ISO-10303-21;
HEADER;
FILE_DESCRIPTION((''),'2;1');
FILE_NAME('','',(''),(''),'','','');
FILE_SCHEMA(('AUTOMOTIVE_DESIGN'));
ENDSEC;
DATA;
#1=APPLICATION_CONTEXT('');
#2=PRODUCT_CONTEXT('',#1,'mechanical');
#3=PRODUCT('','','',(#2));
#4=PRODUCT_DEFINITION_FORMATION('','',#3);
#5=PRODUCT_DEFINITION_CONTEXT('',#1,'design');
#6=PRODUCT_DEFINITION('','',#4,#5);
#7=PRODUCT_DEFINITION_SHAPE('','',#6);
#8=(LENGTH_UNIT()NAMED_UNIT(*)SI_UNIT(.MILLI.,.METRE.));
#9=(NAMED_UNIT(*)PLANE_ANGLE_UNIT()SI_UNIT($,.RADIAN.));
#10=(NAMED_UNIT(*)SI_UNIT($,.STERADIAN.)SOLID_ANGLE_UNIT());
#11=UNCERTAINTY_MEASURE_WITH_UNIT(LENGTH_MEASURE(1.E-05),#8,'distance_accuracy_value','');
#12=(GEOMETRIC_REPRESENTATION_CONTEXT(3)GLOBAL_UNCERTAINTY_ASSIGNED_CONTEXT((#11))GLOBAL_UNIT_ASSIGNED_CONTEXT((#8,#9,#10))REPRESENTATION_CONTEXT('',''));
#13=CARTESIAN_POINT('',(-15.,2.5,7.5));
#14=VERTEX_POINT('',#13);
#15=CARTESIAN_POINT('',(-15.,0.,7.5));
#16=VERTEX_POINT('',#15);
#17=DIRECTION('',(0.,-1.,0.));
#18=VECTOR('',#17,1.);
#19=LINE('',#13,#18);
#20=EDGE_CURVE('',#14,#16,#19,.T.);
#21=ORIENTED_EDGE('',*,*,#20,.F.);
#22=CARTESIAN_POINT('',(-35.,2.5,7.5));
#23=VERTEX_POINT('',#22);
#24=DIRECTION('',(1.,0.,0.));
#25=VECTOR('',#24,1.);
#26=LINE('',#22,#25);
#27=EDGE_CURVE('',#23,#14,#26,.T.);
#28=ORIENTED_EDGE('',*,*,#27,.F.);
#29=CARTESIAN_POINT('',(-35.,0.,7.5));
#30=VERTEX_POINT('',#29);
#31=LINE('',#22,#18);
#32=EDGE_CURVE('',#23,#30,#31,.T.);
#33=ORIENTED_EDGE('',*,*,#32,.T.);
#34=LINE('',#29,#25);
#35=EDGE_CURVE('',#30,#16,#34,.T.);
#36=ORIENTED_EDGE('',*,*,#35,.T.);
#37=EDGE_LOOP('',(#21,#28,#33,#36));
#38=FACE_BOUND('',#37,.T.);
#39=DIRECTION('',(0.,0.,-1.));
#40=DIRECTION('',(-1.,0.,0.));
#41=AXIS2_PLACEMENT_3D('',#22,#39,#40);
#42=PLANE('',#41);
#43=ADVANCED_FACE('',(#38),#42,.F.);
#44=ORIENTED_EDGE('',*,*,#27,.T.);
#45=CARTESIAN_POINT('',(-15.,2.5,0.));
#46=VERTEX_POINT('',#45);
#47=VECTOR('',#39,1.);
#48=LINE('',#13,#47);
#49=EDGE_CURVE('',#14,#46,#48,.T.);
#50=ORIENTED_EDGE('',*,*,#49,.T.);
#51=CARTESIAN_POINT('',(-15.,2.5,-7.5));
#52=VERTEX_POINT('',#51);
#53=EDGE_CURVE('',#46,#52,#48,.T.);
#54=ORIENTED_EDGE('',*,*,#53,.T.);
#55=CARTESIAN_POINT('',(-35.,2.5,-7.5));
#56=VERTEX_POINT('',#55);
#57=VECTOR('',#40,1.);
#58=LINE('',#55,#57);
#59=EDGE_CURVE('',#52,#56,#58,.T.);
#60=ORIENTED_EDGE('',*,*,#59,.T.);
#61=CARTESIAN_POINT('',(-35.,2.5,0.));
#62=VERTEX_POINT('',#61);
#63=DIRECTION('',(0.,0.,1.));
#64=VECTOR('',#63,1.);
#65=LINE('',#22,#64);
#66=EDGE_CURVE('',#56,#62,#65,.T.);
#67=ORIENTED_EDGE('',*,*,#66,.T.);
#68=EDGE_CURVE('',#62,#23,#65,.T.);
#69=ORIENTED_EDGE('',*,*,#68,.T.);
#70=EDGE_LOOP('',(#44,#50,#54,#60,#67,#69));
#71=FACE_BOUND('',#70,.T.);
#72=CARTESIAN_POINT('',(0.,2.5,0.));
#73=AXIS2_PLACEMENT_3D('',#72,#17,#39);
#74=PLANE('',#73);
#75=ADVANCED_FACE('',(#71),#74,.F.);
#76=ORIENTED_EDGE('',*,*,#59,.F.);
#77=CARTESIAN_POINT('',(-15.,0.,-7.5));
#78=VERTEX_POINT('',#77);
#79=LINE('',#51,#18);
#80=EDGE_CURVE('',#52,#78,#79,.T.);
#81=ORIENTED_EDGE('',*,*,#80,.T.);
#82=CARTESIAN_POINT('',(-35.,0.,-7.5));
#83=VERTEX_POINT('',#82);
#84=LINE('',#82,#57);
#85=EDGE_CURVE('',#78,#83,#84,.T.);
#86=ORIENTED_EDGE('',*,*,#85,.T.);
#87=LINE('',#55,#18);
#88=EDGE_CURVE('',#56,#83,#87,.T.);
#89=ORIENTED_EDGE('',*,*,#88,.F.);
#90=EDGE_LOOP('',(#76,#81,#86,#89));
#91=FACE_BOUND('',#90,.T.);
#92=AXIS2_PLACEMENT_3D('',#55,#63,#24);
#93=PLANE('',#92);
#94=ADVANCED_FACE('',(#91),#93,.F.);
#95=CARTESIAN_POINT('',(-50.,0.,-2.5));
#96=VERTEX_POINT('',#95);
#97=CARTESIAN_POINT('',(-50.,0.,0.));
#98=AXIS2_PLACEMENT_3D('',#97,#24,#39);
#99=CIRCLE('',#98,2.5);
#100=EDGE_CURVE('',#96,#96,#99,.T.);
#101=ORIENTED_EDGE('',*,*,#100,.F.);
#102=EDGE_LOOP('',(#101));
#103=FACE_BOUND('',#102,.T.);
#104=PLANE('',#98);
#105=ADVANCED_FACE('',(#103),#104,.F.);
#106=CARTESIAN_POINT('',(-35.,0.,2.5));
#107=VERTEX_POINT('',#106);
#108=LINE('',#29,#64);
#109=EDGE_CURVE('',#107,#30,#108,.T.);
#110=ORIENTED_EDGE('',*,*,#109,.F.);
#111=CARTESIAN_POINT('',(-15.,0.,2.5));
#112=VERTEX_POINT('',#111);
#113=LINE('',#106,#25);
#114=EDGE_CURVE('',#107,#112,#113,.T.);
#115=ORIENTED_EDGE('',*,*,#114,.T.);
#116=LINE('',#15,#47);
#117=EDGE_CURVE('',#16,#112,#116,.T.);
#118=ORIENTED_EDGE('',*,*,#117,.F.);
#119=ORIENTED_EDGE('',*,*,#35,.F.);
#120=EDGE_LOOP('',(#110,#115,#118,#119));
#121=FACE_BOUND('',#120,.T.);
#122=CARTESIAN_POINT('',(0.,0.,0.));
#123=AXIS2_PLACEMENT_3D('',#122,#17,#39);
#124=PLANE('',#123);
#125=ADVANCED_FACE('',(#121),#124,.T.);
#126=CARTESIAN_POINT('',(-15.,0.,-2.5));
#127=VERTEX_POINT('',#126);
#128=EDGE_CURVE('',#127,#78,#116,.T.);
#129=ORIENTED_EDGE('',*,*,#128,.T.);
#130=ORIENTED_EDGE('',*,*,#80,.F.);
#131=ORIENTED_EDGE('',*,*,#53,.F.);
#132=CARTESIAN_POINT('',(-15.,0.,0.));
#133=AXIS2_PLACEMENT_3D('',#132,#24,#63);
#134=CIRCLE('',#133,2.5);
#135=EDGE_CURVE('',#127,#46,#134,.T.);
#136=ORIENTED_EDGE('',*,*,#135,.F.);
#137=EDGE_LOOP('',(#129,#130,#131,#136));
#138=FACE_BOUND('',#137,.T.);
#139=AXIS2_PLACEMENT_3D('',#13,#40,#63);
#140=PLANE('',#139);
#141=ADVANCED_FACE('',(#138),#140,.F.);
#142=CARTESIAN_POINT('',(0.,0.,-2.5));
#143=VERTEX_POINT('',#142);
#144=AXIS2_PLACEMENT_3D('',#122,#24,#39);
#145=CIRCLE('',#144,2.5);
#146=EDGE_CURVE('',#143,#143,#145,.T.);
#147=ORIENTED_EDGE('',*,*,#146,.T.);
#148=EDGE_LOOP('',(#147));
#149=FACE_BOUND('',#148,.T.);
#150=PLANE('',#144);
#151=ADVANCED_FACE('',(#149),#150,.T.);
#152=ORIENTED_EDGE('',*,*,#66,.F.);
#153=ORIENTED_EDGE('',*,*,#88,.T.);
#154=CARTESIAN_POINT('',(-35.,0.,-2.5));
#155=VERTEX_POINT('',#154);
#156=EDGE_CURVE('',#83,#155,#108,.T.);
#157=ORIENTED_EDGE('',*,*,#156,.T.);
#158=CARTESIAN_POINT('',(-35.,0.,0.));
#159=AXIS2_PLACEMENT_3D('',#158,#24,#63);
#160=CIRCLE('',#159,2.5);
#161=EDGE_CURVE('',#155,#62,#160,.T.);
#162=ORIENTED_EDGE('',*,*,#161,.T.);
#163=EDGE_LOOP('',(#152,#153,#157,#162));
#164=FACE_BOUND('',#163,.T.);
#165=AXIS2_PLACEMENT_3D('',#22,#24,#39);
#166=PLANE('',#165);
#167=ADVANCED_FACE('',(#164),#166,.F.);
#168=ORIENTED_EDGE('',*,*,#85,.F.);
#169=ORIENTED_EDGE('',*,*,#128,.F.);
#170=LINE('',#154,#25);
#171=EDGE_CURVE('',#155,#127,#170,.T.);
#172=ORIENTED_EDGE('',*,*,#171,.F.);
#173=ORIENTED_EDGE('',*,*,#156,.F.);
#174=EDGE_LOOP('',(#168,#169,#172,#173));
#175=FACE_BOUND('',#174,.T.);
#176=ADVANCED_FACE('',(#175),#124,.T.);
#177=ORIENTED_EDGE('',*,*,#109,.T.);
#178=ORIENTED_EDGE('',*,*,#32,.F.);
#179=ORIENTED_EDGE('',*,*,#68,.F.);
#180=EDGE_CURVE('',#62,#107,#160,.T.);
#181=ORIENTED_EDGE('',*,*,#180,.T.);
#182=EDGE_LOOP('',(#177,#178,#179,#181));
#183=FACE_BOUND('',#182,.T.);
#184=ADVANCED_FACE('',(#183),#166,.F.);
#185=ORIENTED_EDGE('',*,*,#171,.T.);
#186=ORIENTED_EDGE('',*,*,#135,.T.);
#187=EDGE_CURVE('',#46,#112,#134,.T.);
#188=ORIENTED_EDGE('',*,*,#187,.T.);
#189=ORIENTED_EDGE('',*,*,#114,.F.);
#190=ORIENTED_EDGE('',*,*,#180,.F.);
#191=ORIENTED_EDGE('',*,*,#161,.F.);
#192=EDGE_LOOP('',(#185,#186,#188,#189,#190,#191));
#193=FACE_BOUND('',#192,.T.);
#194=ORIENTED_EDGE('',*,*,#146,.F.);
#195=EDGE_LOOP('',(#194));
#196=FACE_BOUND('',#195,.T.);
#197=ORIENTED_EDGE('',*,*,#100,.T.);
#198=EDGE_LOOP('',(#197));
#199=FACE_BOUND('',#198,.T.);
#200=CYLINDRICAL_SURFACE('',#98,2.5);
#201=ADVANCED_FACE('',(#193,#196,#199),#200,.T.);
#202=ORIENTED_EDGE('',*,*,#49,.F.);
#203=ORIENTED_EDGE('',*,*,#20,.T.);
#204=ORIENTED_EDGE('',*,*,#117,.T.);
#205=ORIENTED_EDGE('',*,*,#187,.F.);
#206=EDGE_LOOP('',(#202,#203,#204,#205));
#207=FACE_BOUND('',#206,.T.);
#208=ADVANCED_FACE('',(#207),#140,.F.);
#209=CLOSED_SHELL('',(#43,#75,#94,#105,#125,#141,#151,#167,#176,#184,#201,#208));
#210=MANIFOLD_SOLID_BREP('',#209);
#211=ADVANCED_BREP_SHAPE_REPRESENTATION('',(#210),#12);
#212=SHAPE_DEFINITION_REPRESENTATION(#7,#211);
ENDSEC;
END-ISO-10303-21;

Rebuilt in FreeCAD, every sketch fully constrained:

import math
import FreeCAD as App
import Part
import Sketcher

doc = App.newDocument("Part")
body = doc.addObject("PartDesign::Body", "Body")

# Sketch on YZ plane
sketch1 = doc.addObject("Sketcher::SketchObject", "Sketch")
body.addObject(sketch1)
sketch1.AttachmentSupport = (doc.YZ_Plane, [""])
sketch1.MapMode = "FlatFace"
sketch1.addGeometry(Part.Circle(App.Vector(0, 0, 0), App.Vector(0, 0, 1), 2.5), False)
sketch1.addConstraint(Sketcher.Constraint("Coincident", 0, 3, -1, 1))
sketch1.addConstraint(Sketcher.Constraint("Diameter", 0, 5.0))
pad1 = doc.addObject("PartDesign::Pad", "Pad")
body.addObject(pad1)
pad1.Profile = sketch1
pad1.Length = 50
pad1.Reversed = True

# Sketch on YZ plane
sketch2 = doc.addObject("Sketcher::SketchObject", "Sketch001")
body.addObject(sketch2)
sketch2.AttachmentSupport = (doc.YZ_Plane, [""])
sketch2.MapMode = "FlatFace"
sketch2.AttachmentOffset = App.Placement(App.Vector(0, 0, -15), App.Rotation())
sketch2.addGeometry(Part.LineSegment(App.Vector(0, 2.5, 0), App.Vector(0, -2.5, 0)), False)
sketch2.addGeometry(Part.ArcOfCircle(Part.Circle(App.Vector(0, 0, 0), App.Vector(0, 0, 1), 2.5), math.radians(-90), math.radians(90)), False)
sketch2.addConstraint(Sketcher.Constraint("Coincident", 0, 1, 1, 2))
sketch2.addConstraint(Sketcher.Constraint("Coincident", 1, 1, 0, 2))
sketch2.addConstraint(Sketcher.Constraint("Vertical", 0))
sketch2.addConstraint(Sketcher.Constraint("Coincident", 1, 3, -1, 1))
sketch2.addConstraint(Sketcher.Constraint("PointOnObject", 0, 1, -2))
sketch2.addConstraint(Sketcher.Constraint("Radius", 1, 2.5))
pocket1 = doc.addObject("PartDesign::Pocket", "Pocket")
body.addObject(pocket1)
pocket1.Profile = sketch2
pocket1.Length = 20

# Sketch on XZ plane
sketch3 = doc.addObject("Sketcher::SketchObject", "Sketch002")
body.addObject(sketch3)
sketch3.AttachmentSupport = (doc.XZ_Plane, [""])
sketch3.MapMode = "FlatFace"
sketch3.addGeometry(Part.LineSegment(App.Vector(-35, -8, 0), App.Vector(-35, 8, 0)), False)
sketch3.addGeometry(Part.LineSegment(App.Vector(-35, 8, 0), App.Vector(-15, 8, 0)), False)
sketch3.addGeometry(Part.LineSegment(App.Vector(-15, 8, 0), App.Vector(-15, -8, 0)), False)
sketch3.addGeometry(Part.LineSegment(App.Vector(-15, -8, 0), App.Vector(-35, -8, 0)), False)
sketch3.addConstraint(Sketcher.Constraint("Coincident", 0, 2, 1, 1))
sketch3.addConstraint(Sketcher.Constraint("Coincident", 1, 2, 2, 1))
sketch3.addConstraint(Sketcher.Constraint("Coincident", 2, 2, 3, 1))
sketch3.addConstraint(Sketcher.Constraint("Coincident", 3, 2, 0, 1))
sketch3.addConstraint(Sketcher.Constraint("Vertical", 0))
sketch3.addConstraint(Sketcher.Constraint("Horizontal", 1))
sketch3.addConstraint(Sketcher.Constraint("Vertical", 2))
sketch3.addConstraint(Sketcher.Constraint("Horizontal", 3))
sketch3.addConstraint(Sketcher.Constraint("DistanceX", 1, 1, 1, 2, 20.0))
sketch3.addConstraint(Sketcher.Constraint("DistanceY", 0, 1, 0, 2, 15.0))
sketch3.addConstraint(Sketcher.Constraint("DistanceX", 0, 2, -1, 1, 35.0))
sketch3.addConstraint(Sketcher.Constraint("DistanceY", -1, 1, 0, 2, 7.5))
pad2 = doc.addObject("PartDesign::Pad", "Pad001")
body.addObject(pad2)
pad2.Profile = sketch3
pad2.Length = 2.5
pad2.Reversed = True

doc.recompute()
